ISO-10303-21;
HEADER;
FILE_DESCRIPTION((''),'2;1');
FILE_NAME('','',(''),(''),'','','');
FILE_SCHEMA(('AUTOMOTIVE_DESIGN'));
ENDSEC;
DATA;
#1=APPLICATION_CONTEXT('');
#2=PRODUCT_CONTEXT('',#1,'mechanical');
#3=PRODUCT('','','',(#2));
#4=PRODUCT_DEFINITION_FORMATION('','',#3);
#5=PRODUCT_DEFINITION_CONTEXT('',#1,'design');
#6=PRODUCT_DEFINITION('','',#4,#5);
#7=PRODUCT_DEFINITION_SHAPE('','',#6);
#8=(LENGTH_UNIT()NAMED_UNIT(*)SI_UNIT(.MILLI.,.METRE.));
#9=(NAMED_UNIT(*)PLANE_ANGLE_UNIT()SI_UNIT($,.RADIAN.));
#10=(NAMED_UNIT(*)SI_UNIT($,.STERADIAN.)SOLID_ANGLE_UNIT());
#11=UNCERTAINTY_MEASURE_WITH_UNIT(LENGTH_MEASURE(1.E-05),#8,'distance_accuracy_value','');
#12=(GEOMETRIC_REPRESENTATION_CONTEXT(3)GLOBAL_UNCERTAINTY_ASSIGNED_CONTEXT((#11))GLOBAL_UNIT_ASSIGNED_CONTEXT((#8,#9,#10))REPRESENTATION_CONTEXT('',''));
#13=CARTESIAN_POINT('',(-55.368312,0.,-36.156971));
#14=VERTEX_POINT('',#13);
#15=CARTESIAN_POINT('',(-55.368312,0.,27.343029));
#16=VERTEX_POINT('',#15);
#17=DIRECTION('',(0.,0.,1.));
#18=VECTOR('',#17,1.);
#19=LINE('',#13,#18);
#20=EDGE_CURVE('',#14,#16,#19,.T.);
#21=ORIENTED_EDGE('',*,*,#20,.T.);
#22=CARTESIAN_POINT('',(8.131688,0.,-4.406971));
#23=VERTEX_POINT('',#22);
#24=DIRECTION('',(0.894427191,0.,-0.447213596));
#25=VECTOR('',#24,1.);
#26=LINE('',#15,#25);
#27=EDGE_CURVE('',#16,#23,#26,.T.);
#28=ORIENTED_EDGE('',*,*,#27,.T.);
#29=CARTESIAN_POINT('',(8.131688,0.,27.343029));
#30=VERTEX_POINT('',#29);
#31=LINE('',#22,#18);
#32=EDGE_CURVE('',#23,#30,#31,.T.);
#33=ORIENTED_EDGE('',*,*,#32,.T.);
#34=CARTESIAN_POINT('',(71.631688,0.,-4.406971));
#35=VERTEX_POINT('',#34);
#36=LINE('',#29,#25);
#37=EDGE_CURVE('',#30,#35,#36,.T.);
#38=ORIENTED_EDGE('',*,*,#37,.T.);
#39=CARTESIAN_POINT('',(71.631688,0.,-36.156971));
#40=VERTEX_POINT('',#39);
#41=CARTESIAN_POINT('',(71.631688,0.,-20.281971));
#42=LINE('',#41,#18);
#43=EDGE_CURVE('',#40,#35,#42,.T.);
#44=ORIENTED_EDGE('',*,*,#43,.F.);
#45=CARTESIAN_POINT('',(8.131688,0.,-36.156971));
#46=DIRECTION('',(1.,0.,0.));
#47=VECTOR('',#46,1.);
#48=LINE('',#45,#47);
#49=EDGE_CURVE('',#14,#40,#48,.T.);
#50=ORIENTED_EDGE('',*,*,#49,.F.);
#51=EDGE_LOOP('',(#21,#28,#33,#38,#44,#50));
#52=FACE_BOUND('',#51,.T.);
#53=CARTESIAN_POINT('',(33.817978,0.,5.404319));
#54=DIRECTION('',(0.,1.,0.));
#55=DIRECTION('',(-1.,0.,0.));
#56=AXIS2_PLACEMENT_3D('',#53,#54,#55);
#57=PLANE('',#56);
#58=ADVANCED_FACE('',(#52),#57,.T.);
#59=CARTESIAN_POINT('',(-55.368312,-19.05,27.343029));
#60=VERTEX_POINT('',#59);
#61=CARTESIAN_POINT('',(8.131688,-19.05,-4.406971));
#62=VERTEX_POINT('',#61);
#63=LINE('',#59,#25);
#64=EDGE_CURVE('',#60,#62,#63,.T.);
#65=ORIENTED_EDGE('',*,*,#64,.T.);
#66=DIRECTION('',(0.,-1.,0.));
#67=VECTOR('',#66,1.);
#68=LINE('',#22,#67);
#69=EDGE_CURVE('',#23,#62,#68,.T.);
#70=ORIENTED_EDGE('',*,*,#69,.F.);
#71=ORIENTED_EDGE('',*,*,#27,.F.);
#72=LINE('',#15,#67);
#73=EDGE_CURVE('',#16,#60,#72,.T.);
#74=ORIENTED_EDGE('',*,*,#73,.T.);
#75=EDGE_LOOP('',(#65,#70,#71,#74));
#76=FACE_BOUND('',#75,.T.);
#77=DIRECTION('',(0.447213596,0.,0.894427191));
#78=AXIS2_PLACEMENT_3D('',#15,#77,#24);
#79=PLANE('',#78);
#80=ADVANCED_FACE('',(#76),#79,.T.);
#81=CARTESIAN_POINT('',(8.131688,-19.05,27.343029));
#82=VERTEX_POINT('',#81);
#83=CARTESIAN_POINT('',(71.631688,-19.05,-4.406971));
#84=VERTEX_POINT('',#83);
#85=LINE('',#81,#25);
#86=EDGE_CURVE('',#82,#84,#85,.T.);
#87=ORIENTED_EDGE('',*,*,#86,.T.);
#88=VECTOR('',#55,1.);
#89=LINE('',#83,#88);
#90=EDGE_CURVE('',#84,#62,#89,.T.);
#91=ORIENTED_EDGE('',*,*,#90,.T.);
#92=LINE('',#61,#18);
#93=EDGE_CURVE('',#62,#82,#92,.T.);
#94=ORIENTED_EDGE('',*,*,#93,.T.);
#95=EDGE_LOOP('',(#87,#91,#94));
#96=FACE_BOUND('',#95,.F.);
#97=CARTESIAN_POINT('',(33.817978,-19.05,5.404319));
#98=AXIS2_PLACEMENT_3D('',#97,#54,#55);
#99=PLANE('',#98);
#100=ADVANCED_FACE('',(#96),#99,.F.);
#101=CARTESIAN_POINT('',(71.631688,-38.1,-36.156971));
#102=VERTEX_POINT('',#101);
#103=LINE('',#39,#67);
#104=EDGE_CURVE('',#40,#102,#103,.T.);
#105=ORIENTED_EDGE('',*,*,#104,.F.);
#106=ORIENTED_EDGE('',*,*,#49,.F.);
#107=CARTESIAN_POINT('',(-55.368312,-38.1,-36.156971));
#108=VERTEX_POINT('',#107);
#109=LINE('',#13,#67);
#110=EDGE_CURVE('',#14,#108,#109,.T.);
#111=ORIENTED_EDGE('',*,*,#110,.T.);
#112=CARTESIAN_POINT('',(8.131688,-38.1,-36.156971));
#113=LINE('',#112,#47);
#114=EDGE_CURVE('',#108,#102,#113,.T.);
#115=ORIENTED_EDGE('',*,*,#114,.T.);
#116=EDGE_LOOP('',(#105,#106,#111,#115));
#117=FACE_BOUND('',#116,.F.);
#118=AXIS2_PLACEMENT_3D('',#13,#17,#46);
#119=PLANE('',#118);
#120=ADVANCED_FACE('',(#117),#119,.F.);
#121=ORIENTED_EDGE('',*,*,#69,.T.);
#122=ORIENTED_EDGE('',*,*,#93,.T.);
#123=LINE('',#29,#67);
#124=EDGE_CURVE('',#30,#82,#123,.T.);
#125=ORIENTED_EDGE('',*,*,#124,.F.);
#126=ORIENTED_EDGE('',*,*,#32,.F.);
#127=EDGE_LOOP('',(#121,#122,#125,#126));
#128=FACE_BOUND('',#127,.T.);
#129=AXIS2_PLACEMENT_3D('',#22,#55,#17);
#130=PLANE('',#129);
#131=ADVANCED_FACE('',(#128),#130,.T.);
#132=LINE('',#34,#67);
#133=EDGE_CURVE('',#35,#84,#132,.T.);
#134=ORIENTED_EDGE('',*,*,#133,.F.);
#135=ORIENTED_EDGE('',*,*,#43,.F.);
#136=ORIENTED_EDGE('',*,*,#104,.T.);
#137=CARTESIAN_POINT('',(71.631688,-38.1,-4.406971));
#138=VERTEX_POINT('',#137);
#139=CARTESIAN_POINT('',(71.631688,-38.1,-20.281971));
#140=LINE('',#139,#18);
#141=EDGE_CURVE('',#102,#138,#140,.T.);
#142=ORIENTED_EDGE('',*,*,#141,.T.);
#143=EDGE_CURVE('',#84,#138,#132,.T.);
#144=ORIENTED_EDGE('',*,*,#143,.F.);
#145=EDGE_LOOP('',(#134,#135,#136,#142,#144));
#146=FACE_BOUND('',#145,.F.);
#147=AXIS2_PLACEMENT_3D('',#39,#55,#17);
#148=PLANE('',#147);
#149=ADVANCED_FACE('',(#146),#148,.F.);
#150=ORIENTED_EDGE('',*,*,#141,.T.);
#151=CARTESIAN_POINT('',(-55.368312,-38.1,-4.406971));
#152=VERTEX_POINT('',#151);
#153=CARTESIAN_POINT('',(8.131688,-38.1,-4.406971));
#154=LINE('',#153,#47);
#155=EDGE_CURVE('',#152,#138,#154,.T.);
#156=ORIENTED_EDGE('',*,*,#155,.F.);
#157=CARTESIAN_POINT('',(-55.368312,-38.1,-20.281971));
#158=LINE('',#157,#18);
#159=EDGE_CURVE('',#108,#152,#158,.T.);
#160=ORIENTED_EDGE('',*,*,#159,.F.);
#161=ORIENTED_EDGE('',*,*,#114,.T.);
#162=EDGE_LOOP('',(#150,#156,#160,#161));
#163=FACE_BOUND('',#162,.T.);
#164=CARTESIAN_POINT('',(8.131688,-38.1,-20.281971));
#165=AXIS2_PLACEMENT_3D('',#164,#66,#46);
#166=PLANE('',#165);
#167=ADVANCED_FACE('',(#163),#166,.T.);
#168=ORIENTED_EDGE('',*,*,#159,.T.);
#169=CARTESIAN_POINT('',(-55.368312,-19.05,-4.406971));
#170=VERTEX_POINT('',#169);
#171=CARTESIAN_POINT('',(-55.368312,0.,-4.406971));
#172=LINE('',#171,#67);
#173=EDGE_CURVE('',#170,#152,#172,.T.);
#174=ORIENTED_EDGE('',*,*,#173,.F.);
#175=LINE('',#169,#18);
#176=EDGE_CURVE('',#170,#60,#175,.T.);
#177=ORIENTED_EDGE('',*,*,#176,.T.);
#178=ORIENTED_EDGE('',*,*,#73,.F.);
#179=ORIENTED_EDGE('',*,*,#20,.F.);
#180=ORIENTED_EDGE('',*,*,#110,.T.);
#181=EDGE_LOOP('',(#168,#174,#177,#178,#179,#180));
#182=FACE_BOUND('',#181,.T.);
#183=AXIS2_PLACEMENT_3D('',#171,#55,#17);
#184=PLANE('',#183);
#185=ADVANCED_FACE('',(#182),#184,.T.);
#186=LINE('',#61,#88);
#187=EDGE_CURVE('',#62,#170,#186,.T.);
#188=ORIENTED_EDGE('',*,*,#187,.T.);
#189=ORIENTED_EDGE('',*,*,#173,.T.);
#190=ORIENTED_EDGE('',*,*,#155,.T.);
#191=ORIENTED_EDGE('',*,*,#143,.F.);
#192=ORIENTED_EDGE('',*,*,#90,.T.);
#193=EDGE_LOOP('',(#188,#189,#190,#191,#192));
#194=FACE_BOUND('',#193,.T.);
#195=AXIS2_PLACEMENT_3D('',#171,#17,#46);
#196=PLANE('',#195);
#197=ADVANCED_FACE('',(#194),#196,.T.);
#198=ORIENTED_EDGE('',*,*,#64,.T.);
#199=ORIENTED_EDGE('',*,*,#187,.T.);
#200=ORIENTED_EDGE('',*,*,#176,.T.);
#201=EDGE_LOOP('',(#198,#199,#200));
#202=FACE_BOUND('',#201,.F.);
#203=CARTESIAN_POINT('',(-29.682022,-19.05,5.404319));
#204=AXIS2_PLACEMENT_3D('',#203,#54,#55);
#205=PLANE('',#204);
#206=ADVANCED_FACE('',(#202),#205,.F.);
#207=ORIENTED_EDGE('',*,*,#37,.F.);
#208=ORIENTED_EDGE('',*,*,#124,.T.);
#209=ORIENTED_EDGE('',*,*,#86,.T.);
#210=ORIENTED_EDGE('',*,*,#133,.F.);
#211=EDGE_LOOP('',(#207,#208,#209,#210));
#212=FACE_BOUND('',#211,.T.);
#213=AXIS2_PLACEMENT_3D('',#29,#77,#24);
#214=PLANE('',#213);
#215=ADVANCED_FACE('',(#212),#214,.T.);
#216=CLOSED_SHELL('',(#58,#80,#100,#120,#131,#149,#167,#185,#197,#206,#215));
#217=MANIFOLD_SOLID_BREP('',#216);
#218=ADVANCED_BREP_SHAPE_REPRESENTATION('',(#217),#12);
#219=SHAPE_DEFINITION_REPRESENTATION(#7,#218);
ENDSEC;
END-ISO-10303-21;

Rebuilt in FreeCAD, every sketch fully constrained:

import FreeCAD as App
import Part
import Sketcher

V = App.Vector
Q = App.Units.Quantity


def add_polygon(sketch, points):
    """Adds a closed chain of lines whose ends are joined by coincident constraints."""
    first, n = sketch.GeometryCount, len(points)
    for a, b in zip(points, points[1:] + points[:1]):
        sketch.addGeometry(Part.LineSegment(App.Vector(*a, 0), App.Vector(*b, 0)), False)
    for i in range(n):
        sketch.addConstraint(Sketcher.Constraint("Coincident", first + i, 2, first + (i + 1) % n, 1))

doc = App.newDocument("Part")
body = doc.addObject("PartDesign::Body", "Body")

# Sketch on XZ plane
sketch1 = body.newObject("Sketcher::SketchObject", "Sketch")
sketch1.AttachmentSupport = (doc.getObject("XZ_Plane"), [""])
sketch1.MapMode = "FlatFace"
add_polygon(sketch1, [(-55, -4), (-55, -36), (72, -36), (72, -4)])  # lines 0-3
sketch1.addConstraint(Sketcher.Constraint("Vertical", 0))
sketch1.addConstraint(Sketcher.Constraint("Horizontal", 1))
sketch1.addConstraint(Sketcher.Constraint("Vertical", 2))
sketch1.addConstraint(Sketcher.Constraint("Horizontal", 3))
sketch1.addConstraint(Sketcher.Constraint("DistanceX", 1, 1, 1, 2, Q("5 in")))
sketch1.addConstraint(Sketcher.Constraint("DistanceY", 0, 2, 0, 1, Q("1.25 in")))
sketch1.addConstraint(Sketcher.Constraint("DistanceY", 0, 2, -1, 1, 36.156971))
sketch1.addConstraint(Sketcher.Constraint("DistanceX", 0, 2, -1, 1, 55.368312))
pad1 = body.newObject("PartDesign::Pad", "Pad")
pad1.Profile = sketch1
pad1.Length = Q("1.5 in")

# Sketch on XZ plane
sketch2 = body.newObject("Sketcher::SketchObject", "Sketch001")
sketch2.AttachmentSupport = (doc.getObject("XZ_Plane"), [""])
sketch2.MapMode = "FlatFace"
add_polygon(sketch2, [(72, -4), (8, -4), (8, 27)])  # lines 0-2
add_polygon(sketch2, [(8, -4), (-55, -4), (-55, 27)])  # lines 3-5
sketch2.addConstraint(Sketcher.Constraint("Horizontal", 0))
sketch2.addConstraint(Sketcher.Constraint("Vertical", 1))
sketch2.addConstraint(Sketcher.Constraint("Horizontal", 3))
sketch2.addConstraint(Sketcher.Constraint("Vertical", 4))
sketch2.addConstraint(Sketcher.Constraint("Coincident", 5, 2, 0, 2))
sketch2.addConstraint(Sketcher.Constraint("Parallel", 2, 5))
sketch2.addConstraint(Sketcher.Constraint("Horizontal", 1, 2, 4, 2))
sketch2.addConstraint(Sketcher.Constraint("DistanceX", 0, 2, 0, 1, Q("2.5 in")))
sketch2.addConstraint(Sketcher.Constraint("DistanceY", 1, 1, 1, 2, Q("1.25 in")))
sketch2.addConstraint(Sketcher.Constraint("DistanceY", 0, 2, -1, 1, 4.406971))
sketch2.addConstraint(Sketcher.Constraint("DistanceX", -1, 1, 0, 2, 8.131688))
pad2 = body.newObject("PartDesign::Pad", "Pad001")
pad2.Profile = sketch2
pad2.Length = Q("0.75 in")

doc.recompute()
